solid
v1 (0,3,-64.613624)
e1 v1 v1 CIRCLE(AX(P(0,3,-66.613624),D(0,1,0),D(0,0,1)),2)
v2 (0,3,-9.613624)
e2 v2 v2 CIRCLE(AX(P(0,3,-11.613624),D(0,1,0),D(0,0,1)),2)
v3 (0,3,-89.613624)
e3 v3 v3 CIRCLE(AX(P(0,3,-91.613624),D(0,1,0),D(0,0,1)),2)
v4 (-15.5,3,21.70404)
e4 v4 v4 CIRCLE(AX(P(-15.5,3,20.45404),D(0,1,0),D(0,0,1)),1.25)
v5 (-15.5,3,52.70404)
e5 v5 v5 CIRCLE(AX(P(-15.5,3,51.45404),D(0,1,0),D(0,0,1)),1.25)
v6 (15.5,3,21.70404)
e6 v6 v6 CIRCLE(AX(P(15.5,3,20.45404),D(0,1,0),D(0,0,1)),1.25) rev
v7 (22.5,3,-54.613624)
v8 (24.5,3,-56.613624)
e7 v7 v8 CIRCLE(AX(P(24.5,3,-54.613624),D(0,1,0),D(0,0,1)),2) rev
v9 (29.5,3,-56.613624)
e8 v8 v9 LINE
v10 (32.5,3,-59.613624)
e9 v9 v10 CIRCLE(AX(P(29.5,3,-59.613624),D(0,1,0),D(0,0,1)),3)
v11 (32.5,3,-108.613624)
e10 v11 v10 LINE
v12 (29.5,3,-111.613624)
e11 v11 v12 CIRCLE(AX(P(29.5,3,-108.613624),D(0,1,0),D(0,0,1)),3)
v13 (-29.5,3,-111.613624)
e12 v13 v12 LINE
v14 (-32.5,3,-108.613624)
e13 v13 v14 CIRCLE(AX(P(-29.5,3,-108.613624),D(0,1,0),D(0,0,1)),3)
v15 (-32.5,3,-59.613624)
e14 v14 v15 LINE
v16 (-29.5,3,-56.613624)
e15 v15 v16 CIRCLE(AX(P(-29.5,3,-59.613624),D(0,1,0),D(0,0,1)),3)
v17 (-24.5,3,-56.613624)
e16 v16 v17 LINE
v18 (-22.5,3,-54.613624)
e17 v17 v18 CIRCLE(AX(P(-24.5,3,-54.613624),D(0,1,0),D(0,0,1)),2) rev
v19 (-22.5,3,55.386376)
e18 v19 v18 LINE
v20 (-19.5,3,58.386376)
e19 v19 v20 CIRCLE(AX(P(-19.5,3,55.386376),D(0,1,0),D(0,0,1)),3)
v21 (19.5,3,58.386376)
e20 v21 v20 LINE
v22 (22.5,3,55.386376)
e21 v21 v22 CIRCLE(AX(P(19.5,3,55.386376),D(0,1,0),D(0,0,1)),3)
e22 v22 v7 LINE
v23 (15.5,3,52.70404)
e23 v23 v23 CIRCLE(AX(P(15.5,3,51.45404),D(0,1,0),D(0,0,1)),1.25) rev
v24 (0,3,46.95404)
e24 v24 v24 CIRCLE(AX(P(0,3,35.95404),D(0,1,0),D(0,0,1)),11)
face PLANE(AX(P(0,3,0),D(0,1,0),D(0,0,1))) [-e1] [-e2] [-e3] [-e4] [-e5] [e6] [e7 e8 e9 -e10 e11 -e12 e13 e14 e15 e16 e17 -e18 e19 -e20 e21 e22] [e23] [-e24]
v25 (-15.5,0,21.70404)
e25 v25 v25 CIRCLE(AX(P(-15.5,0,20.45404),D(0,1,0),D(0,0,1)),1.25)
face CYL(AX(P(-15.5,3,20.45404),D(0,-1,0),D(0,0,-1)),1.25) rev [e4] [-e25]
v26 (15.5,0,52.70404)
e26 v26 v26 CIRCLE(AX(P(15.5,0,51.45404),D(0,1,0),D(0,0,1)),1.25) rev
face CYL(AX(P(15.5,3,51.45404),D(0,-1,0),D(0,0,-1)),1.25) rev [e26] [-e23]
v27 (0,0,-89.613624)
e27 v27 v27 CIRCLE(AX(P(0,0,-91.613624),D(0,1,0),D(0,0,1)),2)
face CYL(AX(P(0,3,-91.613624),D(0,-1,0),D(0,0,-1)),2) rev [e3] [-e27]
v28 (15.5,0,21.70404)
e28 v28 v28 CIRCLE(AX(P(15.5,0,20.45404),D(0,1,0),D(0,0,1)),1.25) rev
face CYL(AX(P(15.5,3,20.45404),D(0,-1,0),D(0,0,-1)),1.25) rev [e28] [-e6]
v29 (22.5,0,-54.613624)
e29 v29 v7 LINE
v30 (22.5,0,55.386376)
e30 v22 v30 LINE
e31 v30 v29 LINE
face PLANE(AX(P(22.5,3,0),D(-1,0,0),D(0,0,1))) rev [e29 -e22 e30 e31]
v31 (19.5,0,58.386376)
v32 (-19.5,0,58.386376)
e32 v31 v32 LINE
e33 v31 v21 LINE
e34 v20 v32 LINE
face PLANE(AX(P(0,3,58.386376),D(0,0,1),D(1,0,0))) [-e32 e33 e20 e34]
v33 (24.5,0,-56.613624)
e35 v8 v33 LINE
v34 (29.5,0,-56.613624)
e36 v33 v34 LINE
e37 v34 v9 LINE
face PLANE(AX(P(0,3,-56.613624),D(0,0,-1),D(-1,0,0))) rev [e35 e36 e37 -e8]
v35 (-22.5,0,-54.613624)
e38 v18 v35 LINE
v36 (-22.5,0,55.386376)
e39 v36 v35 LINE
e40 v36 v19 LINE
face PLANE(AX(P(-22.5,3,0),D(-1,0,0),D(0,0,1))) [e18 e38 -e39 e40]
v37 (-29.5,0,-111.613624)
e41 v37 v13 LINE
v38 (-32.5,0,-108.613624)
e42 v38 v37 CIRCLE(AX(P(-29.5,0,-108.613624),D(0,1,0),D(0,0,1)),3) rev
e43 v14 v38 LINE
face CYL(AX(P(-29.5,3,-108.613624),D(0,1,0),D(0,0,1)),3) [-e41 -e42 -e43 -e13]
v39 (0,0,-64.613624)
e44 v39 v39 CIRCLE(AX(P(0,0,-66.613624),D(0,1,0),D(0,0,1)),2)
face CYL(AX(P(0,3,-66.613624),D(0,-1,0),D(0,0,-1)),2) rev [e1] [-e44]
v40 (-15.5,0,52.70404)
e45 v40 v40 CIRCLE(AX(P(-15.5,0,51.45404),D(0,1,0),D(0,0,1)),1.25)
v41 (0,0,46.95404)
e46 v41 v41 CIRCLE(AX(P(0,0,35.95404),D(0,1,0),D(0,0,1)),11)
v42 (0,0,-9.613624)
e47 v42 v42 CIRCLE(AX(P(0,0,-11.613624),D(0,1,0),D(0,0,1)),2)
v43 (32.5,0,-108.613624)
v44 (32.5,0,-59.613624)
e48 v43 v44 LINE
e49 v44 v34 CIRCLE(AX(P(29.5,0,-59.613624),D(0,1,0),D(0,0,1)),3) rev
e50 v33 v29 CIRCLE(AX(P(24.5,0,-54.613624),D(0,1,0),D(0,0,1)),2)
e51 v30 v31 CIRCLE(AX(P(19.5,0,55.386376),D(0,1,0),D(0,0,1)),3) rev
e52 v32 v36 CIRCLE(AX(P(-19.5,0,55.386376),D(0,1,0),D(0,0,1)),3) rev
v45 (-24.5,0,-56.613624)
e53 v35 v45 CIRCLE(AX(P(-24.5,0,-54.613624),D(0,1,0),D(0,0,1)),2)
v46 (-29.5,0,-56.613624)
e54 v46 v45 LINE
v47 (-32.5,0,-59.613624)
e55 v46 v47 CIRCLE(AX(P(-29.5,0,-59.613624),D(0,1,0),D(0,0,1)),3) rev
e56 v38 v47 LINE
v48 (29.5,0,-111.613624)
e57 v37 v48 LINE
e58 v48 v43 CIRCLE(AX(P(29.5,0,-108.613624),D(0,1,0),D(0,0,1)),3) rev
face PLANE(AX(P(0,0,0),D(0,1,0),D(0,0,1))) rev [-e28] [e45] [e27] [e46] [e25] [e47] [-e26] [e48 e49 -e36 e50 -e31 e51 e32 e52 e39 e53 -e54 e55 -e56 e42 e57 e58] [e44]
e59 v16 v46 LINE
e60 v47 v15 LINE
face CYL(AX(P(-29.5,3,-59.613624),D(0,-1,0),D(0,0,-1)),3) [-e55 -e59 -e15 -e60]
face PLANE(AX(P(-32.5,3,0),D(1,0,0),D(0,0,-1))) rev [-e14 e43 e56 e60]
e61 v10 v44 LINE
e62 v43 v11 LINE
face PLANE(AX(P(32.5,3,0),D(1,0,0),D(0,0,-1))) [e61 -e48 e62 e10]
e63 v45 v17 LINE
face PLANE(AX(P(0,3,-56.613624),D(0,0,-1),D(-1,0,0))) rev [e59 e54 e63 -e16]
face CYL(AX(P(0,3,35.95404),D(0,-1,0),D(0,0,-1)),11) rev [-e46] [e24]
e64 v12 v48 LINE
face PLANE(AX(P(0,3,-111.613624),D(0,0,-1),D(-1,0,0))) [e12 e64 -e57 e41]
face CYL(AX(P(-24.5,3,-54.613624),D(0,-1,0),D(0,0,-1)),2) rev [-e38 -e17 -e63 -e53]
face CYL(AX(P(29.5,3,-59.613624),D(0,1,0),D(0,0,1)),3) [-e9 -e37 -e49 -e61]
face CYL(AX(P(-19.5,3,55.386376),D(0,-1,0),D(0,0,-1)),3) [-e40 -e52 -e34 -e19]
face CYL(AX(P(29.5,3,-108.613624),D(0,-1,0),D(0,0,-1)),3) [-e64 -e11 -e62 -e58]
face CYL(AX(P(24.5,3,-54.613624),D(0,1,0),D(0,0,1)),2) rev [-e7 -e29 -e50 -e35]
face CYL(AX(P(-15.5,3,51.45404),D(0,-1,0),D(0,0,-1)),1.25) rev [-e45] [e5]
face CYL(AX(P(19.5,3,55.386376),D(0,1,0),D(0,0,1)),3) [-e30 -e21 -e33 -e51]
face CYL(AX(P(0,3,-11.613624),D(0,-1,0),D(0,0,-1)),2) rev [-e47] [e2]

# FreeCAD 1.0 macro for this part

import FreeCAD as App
import Part
import Sketcher
from FreeCAD import Vector
Q = App.Units.Quantity


def edges_at(feature, points):
    """Names of the edges that pass closest to the given points."""
    edges = feature.Shape.Edges
    near = lambda p: min(range(len(edges)), key=lambda i: edges[i].distToShape(Part.Vertex(*p))[0])
    return sorted({f"Edge{near(p) + 1}" for p in points})

doc = App.newDocument("Part")
params = doc.addObject("Spreadsheet::Sheet", "Params")
for row, (alias, value) in enumerate([
    ("sketch1_diameter", "22 mm"),
    ("sketch1_diameter2", "4 mm"),
    ("sketch1_diameter3", "2.5 mm"),
    ("sketch1_width", "10 mm"),
    ("sketch1_width2", "45 mm"),
    ("pad1_length", "3 mm"),
    ("fillet_radius", "3 mm"),
    ("fillet2_radius", "3 mm"),
    ("fillet3_radius", "3 mm"),
    ("fillet4_radius", "3 mm"),
    ("fillet5_radius", "3 mm"),
    ("fillet6_radius", "3 mm"),
    ("fillet7_radius", "2 mm"),
    ("fillet8_radius", "2 mm"),
], start=1):
    params.set(f"A{row}", alias)
    params.set(f"B{row}", "=" + value)
    params.setAlias(f"B{row}", alias)

body = doc.addObject("PartDesign::Body", "Body")

sketch1 = body.newObject("Sketcher::SketchObject", "Sketch")
sketch1.AttachmentSupport = (doc.getObject("XZ_Plane"), [""])
sketch1.MapMode = "FlatFace"
sketch1.addGeometry([
    Part.LineSegment(Vector(-32.5, -111.6, 0), Vector(-32.5, -56.6, 0)),
    Part.LineSegment(Vector(-32.5, -56.6, 0), Vector(-22.5, -56.6, 0)),
    Part.LineSegment(Vector(-22.5, -56.6, 0), Vector(-22.5, 58.4, 0)),
    Part.LineSegment(Vector(-22.5, 58.4, 0), Vector(22.5, 58.4, 0)),
    Part.LineSegment(Vector(22.5, 58.4, 0), Vector(22.5, -56.6, 0)),
    Part.LineSegment(Vector(22.5, -56.6, 0), Vector(32.5, -56.6, 0)),
    Part.LineSegment(Vector(32.5, -56.6, 0), Vector(32.5, -111.6, 0)),
    Part.LineSegment(Vector(32.5, -111.6, 0), Vector(-32.5, -111.6, 0)),
    Part.Circle(Vector(-15.5, 51.5, 0), Vector(0, 0, 1), 1.2),
    Part.Circle(Vector(-15.5, 20.5, 0), Vector(0, 0, 1), 1.2),
    Part.Circle(Vector(0, 36, 0), Vector(0, 0, 1), 11),
    Part.Circle(Vector(15.5, 51.5, 0), Vector(0, 0, 1), 1.2),
    Part.Circle(Vector(15.5, 20.5, 0), Vector(0, 0, 1), 1.2),
    Part.Circle(Vector(0, -11.6, 0), Vector(0, 0, 1), 2),
    Part.Circle(Vector(0, -66.6, 0), Vector(0, 0, 1), 2),
    Part.Circle(Vector(0, -91.6, 0), Vector(0, 0, 1), 2),
], False)
sketch1.addConstraint([
    Sketcher.Constraint("Coincident", 0, 2, 1, 1),
    Sketcher.Constraint("Coincident", 1, 2, 2, 1),
    Sketcher.Constraint("Coincident", 2, 2, 3, 1),
    Sketcher.Constraint("Coincident", 3, 2, 4, 1),
    Sketcher.Constraint("Coincident", 4, 2, 5, 1),
    Sketcher.Constraint("Coincident", 5, 2, 6, 1),
    Sketcher.Constraint("Coincident", 6, 2, 7, 1),
    Sketcher.Constraint("Coincident", 7, 2, 0, 1),
    Sketcher.Constraint("Vertical", 0),
    Sketcher.Constraint("Horizontal", 1),
    Sketcher.Constraint("Vertical", 2),
    Sketcher.Constraint("Horizontal", 3),
    Sketcher.Constraint("Vertical", 4),
    Sketcher.Constraint("Horizontal", 5),
    Sketcher.Constraint("Vertical", 6),
    Sketcher.Constraint("Horizontal", 7),
    Sketcher.Constraint("Equal", 8, 9),
    Sketcher.Constraint("Equal", 9, 11),
    Sketcher.Constraint("Equal", 11, 12),
    Sketcher.Constraint("Equal", 13, 14),
    Sketcher.Constraint("Equal", 14, 15),
    Sketcher.Constraint("Symmetric", 8, 3, 11, 3, -2),
    Sketcher.Constraint("Symmetric", 9, 3, 12, 3, -2),
    Sketcher.Constraint("Symmetric", 1, 2, 4, 2, -2),
    Sketcher.Constraint("PointOnObject", 10, 3, -2),
    Sketcher.Constraint("PointOnObject", 13, 3, -2),
    Sketcher.Constraint("PointOnObject", 14, 3, -2),
    Sketcher.Constraint("PointOnObject", 15, 3, -2),
    Sketcher.Constraint("Vertical", 8, 3, 9, 3),
    Sketcher.Constraint("Equal", 1, 5),
    Sketcher.Constraint("Diameter", 10, Q("22 mm")),
    Sketcher.Constraint("Diameter", 13, Q("4 mm")),
    Sketcher.Constraint("Diameter", 8, Q("2.5 mm")),
    Sketcher.Constraint("DistanceX", 1, 1, 1, 2, Q("10 mm")),
    Sketcher.Constraint("DistanceX", 3, 1, 3, 2, Q("45 mm")),
    Sketcher.Constraint("DistanceY", 0, 1, 0, 2, Q("55 mm")),
    Sketcher.Constraint("DistanceY", 2, 1, 2, 2, Q("115 mm")),
    Sketcher.Constraint("DistanceY", 9, 3, 8, 3, Q("31 mm")),
    Sketcher.Constraint("DistanceX", 8, 3, 11, 3, Q("31 mm")),
    Sketcher.Constraint("DistanceY", 14, 3, 13, 3, Q("55 mm")),
    Sketcher.Constraint("DistanceY", 15, 3, 14, 3, Q("25 mm")),
    Sketcher.Constraint("DistanceY", 14, 3, 0, 2, Q("10 mm")),
    Sketcher.Constraint("DistanceY", 9, 3, 10, 3, Q("15.5 mm")),
    Sketcher.Constraint("DistanceY", -1, 1, 8, 3, Q("51.45404 mm")),
    Sketcher.Constraint("DistanceY", 13, 3, -1, 1, Q("11.613624 mm")),
])
sketch1.setExpression("Constraints[30]", "Params.sketch1_diameter")
sketch1.setExpression("Constraints[31]", "Params.sketch1_diameter2")
sketch1.setExpression("Constraints[32]", "Params.sketch1_diameter3")
sketch1.setExpression("Constraints[33]", "Params.sketch1_width")
sketch1.setExpression("Constraints[34]", "Params.sketch1_width2")
pad1 = body.newObject("PartDesign::Pad", "Pad")
pad1.Profile = sketch1
pad1.setExpression("Length", "Params.pad1_length")
pad1.Reversed = True
doc.recompute()

fillet = body.newObject("PartDesign::Fillet", "Fillet")
fillet.Base = (pad1, edges_at(pad1, [(32.5, 1.5, -111.614)]))
fillet.setExpression("Radius", "Params.fillet_radius")
doc.recompute()

fillet2 = body.newObject("PartDesign::Fillet", "Fillet001")
fillet2.Base = (fillet, edges_at(fillet, [(-32.5, 1.5, -111.614)]))
fillet2.setExpression("Radius", "Params.fillet2_radius")
doc.recompute()

fillet3 = body.newObject("PartDesign::Fillet", "Fillet002")
fillet3.Base = (fillet2, edges_at(fillet2, [(-32.5, 1.5, -56.614)]))
fillet3.setExpression("Radius", "Params.fillet3_radius")
doc.recompute()

fillet4 = body.newObject("PartDesign::Fillet", "Fillet003")
fillet4.Base = (fillet3, edges_at(fillet3, [(32.5, 1.5, -56.614)]))
fillet4.setExpression("Radius", "Params.fillet4_radius")
doc.recompute()

fillet5 = body.newObject("PartDesign::Fillet", "Fillet004")
fillet5.Base = (fillet4, edges_at(fillet4, [(22.5, 1.5, 58.386)]))
fillet5.setExpression("Radius", "Params.fillet5_radius")
doc.recompute()

fillet6 = body.newObject("PartDesign::Fillet", "Fillet005")
fillet6.Base = (fillet5, edges_at(fillet5, [(-22.5, 1.5, 58.386)]))
fillet6.setExpression("Radius", "Params.fillet6_radius")
doc.recompute()

fillet7 = body.newObject("PartDesign::Fillet", "Fillet006")
fillet7.Base = (fillet6, edges_at(fillet6, [(-22.5, 1.5, -56.614)]))
fillet7.setExpression("Radius", "Params.fillet7_radius")
doc.recompute()

fillet8 = body.newObject("PartDesign::Fillet", "Fillet007")
fillet8.Base = (fillet7, edges_at(fillet7, [(22.5, 1.5, -56.614)]))
fillet8.setExpression("Radius", "Params.fillet8_radius")

doc.recompute()
